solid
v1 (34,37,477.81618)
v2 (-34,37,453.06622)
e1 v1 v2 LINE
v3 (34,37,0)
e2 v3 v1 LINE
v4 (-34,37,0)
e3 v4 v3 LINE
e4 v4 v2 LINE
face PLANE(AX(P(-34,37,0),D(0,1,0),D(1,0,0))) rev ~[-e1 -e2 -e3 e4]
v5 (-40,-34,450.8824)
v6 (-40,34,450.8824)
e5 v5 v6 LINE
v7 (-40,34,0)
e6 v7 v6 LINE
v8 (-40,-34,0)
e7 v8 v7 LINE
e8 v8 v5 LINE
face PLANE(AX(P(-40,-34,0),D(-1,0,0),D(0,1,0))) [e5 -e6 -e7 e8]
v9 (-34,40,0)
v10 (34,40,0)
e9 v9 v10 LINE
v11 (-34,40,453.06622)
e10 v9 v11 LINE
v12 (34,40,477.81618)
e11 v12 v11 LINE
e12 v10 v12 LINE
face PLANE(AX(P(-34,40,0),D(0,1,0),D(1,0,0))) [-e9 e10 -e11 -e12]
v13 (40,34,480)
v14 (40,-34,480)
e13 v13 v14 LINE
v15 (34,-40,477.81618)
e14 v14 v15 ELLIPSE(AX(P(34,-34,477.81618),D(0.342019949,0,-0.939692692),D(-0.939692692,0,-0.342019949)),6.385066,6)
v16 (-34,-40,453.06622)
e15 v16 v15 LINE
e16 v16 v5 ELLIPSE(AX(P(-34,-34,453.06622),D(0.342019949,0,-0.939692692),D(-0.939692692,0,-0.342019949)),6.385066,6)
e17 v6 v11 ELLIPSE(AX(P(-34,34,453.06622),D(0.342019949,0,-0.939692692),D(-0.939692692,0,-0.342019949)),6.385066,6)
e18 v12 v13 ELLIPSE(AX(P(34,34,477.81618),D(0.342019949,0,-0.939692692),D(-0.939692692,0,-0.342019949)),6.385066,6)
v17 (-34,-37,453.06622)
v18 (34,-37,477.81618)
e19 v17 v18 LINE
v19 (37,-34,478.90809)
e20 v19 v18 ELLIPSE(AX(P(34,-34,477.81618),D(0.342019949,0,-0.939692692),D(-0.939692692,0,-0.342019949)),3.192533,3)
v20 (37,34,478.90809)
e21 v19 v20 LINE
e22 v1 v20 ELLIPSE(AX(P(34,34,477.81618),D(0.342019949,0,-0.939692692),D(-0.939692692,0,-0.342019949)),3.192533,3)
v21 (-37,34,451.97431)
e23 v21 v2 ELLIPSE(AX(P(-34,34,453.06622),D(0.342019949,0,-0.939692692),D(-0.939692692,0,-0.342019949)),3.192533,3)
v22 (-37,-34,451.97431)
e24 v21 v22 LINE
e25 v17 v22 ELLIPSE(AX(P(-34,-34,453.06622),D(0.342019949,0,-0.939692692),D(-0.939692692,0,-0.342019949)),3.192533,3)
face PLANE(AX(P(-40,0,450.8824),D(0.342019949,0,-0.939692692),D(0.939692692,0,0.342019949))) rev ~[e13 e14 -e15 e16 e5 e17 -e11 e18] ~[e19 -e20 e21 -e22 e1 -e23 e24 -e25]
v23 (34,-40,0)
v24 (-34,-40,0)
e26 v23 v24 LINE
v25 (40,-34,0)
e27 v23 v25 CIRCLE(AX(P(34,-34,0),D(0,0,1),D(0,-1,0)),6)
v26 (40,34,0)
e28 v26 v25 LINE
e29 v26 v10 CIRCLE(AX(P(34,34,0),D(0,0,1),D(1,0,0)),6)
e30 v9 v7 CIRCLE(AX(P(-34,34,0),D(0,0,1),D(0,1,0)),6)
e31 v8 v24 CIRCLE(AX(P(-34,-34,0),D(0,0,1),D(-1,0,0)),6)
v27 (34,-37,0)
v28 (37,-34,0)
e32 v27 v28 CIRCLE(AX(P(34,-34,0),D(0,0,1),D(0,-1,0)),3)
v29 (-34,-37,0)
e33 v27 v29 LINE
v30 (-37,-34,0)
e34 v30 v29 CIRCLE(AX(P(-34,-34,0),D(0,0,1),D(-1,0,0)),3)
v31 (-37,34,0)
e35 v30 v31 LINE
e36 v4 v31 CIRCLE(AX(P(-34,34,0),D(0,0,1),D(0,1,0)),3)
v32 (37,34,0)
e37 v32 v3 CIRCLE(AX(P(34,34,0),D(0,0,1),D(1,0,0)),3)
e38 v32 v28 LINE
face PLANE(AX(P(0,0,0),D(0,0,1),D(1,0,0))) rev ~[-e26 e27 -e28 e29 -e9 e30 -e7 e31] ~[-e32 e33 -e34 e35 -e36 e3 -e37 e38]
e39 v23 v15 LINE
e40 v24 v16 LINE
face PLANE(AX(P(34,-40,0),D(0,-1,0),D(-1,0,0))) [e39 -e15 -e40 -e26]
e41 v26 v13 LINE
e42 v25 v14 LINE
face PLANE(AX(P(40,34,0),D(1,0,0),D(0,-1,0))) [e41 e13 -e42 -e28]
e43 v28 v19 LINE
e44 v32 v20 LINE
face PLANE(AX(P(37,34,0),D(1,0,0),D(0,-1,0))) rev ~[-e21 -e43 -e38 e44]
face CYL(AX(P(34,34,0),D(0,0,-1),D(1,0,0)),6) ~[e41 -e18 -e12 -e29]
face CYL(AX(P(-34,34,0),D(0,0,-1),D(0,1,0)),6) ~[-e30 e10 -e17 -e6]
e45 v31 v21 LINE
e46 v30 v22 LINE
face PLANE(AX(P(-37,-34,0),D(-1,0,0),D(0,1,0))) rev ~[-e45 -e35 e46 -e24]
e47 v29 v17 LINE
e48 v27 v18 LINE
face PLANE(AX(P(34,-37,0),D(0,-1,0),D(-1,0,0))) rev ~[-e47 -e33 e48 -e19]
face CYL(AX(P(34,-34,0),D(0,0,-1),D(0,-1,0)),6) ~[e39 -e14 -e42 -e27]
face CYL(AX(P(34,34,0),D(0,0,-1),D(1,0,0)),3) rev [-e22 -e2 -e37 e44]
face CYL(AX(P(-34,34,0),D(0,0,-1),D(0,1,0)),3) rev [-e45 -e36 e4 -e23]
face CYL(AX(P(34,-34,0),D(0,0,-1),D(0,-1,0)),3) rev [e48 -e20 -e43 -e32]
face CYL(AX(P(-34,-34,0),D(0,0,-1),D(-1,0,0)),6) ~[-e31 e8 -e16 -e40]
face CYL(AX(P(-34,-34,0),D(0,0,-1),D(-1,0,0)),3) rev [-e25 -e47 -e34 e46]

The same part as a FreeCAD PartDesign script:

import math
import FreeCAD as App
import Part
import Sketcher
Q = App.Units.Quantity

doc = App.newDocument("Part")
params = doc.addObject("Spreadsheet::Sheet", "Params")
for row, (alias, value) in enumerate([
    ("sketch1_radius", "6 mm"),
    ("sketch1_radius2", "3 mm"),
    ("pad1_length", "1000 mm"),
    ("sketch2_width", "80 mm"),
    ("sketch2_height", "520 mm"),
], start=1):
    params.set(f"A{row}", alias)
    params.set(f"B{row}", "=" + value)
    params.setAlias(f"B{row}", alias)

body = doc.addObject("PartDesign::Body", "Body")

# Sketch on XY plane
sketch1 = doc.addObject("Sketcher::SketchObject", "Sketch")
body.addObject(sketch1)
sketch1.AttachmentSupport = (doc.XY_Plane, [""])
sketch1.MapMode = "FlatFace"
sketch1.addGeometry([
    Part.LineSegment(App.Vector(-40, 34, 0), App.Vector(-40, -34, 0)),  # 0
    Part.ArcOfCircle(Part.Circle(App.Vector(-34, -34, 0), App.Vector(0, 0, 1), 6), math.radians(180), math.radians(270)),  # 1
    Part.LineSegment(App.Vector(-34, -40, 0), App.Vector(34, -40, 0)),  # 2
    Part.ArcOfCircle(Part.Circle(App.Vector(34, -34, 0), App.Vector(0, 0, 1), 6), math.radians(-90), math.radians(0)),  # 3
    Part.LineSegment(App.Vector(40, -34, 0), App.Vector(40, 34, 0)),  # 4
    Part.ArcOfCircle(Part.Circle(App.Vector(34, 34, 0), App.Vector(0, 0, 1), 6), math.radians(0), math.radians(90)),  # 5
    Part.LineSegment(App.Vector(34, 40, 0), App.Vector(-34, 40, 0)),  # 6
    Part.ArcOfCircle(Part.Circle(App.Vector(-34, 34, 0), App.Vector(0, 0, 1), 6), math.radians(90), math.radians(180)),  # 7
    Part.ArcOfCircle(Part.Circle(App.Vector(-34, 34, 0), App.Vector(0, 0, 1), 3), math.radians(90), math.radians(180)),  # 8
    Part.LineSegment(App.Vector(-34, 37, 0), App.Vector(34, 37, 0)),  # 9
    Part.ArcOfCircle(Part.Circle(App.Vector(34, 34, 0), App.Vector(0, 0, 1), 3), math.radians(0), math.radians(90)),  # 10
    Part.LineSegment(App.Vector(37, 34, 0), App.Vector(37, -34, 0)),  # 11
    Part.ArcOfCircle(Part.Circle(App.Vector(34, -34, 0), App.Vector(0, 0, 1), 3), math.radians(-90), math.radians(0)),  # 12
    Part.LineSegment(App.Vector(34, -37, 0), App.Vector(-34, -37, 0)),  # 13
    Part.ArcOfCircle(Part.Circle(App.Vector(-34, -34, 0), App.Vector(0, 0, 1), 3), math.radians(180), math.radians(270)),  # 14
    Part.LineSegment(App.Vector(-37, -34, 0), App.Vector(-37, 34, 0)),  # 15
], False)
sketch1.addConstraint([
    Sketcher.Constraint("Tangent", 0, 2, 1, 1),
    Sketcher.Constraint("Tangent", 1, 2, 2, 1),
    Sketcher.Constraint("Tangent", 2, 2, 3, 1),
    Sketcher.Constraint("Tangent", 3, 2, 4, 1),
    Sketcher.Constraint("Tangent", 4, 2, 5, 1),
    Sketcher.Constraint("Tangent", 5, 2, 6, 1),
    Sketcher.Constraint("Tangent", 6, 2, 7, 1),
    Sketcher.Constraint("Tangent", 7, 2, 0, 1),
    Sketcher.Constraint("Tangent", 8, 1, 9, 1),
    Sketcher.Constraint("Tangent", 9, 2, 10, 2),
    Sketcher.Constraint("Tangent", 10, 1, 11, 1),
    Sketcher.Constraint("Tangent", 11, 2, 12, 2),
    Sketcher.Constraint("Tangent", 12, 1, 13, 1),
    Sketcher.Constraint("Tangent", 13, 2, 14, 2),
    Sketcher.Constraint("Tangent", 14, 1, 15, 1),
    Sketcher.Constraint("Tangent", 15, 2, 8, 2),
    Sketcher.Constraint("Vertical", 0),
    Sketcher.Constraint("Horizontal", 2),
    Sketcher.Constraint("Vertical", 4),
    Sketcher.Constraint("Horizontal", 6),
    Sketcher.Constraint("Horizontal", 9),
    Sketcher.Constraint("Vertical", 11),
    Sketcher.Constraint("Horizontal", 13),
    Sketcher.Constraint("Vertical", 15),
    Sketcher.Constraint("Coincident", 8, 3, 7, 3),
    Sketcher.Constraint("Coincident", 10, 3, 5, 3),
    Sketcher.Constraint("Coincident", 12, 3, 3, 3),
    Sketcher.Constraint("Equal", 1, 3),
    Sketcher.Constraint("Equal", 3, 5),
    Sketcher.Constraint("Equal", 5, 7),
    Sketcher.Constraint("Equal", 12, 14),
    Sketcher.Constraint("Symmetric", 1, 3, 5, 3, -1, 1),
    Sketcher.Constraint("Equal", 13, 0),
    Sketcher.Constraint("Radius", 1, Q("6 mm")),
    Sketcher.Constraint("Radius", 8, Q("3 mm")),
    Sketcher.Constraint("DistanceX", 0, 2, -1, 1, Q("40 mm")),
])
sketch1.setExpression("Constraints[33]", "Params.sketch1_radius")
sketch1.setExpression("Constraints[34]", "Params.sketch1_radius2")
pad1 = doc.addObject("PartDesign::Pad", "Pad")
body.addObject(pad1)
pad1.Profile = sketch1
pad1.setExpression("Length", "Params.pad1_length")

# Sketch on XZ plane
sketch2 = doc.addObject("Sketcher::SketchObject", "Sketch001")
body.addObject(sketch2)
sketch2.AttachmentSupport = (doc.XZ_Plane, [""])
sketch2.MapMode = "FlatFace"
sketch2.addGeometry([
    Part.LineSegment(App.Vector(40, 480, 0), App.Vector(-40, 451, 0)),
    Part.LineSegment(App.Vector(-40, 451, 0), App.Vector(-40, 1000, 0)),
    Part.LineSegment(App.Vector(-40, 1000, 0), App.Vector(40, 1000, 0)),
    Part.LineSegment(App.Vector(40, 1000, 0), App.Vector(40, 480, 0)),
], False)
sketch2.addConstraint([
    Sketcher.Constraint("Coincident", 0, 2, 1, 1),
    Sketcher.Constraint("Coincident", 1, 2, 2, 1),
    Sketcher.Constraint("Coincident", 2, 2, 3, 1),
    Sketcher.Constraint("Coincident", 3, 2, 0, 1),
    Sketcher.Constraint("Vertical", 1),
    Sketcher.Constraint("Horizontal", 2),
    Sketcher.Constraint("Vertical", 3),
    Sketcher.Constraint("DistanceY", -1, 1, 3, 2, Q("480 mm")),
    Sketcher.Constraint("DistanceX", 2, 1, 2, 2, Q("80 mm")),
    Sketcher.Constraint("DistanceY", 3, 2, 3, 1, Q("520 mm")),
    Sketcher.Constraint("Angle", 0, Q("-160 deg")),
    Sketcher.Constraint("DistanceX", 0, 2, -1, 1, Q("40 mm")),
])
sketch2.setExpression("Constraints[8]", "Params.sketch2_width")
sketch2.setExpression("Constraints[9]", "Params.sketch2_height")
pocket1 = doc.addObject("PartDesign::Pocket", "Pocket")
body.addObject(pocket1)
pocket1.Profile = sketch2
pocket1.Type = "ThroughAll"
pocket1.Midplane = True

doc.recompute()
